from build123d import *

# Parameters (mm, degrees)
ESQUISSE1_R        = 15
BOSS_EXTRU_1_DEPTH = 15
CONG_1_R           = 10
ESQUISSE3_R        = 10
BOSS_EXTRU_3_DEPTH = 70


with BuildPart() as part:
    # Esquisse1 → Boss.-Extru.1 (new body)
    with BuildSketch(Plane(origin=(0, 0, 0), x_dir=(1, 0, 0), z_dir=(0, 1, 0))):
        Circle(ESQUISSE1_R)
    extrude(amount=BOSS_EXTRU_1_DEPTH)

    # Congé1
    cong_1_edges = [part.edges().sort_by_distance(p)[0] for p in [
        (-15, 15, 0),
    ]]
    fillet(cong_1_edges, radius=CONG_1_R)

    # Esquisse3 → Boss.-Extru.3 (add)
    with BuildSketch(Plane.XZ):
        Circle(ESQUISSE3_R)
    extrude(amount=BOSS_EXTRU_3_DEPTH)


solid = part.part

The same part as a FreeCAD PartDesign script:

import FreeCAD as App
import Part
import Sketcher
from FreeCAD import Vector
Q = App.Units.Quantity


def edges_at(feature, points):
    """Names of the edges that pass closest to the given points."""
    edges = feature.Shape.Edges
    near = lambda p: min(range(len(edges)), key=lambda i: edges[i].distToShape(Part.Vertex(*p))[0])
    return sorted({f"Edge{near(p) + 1}" for p in points})

doc = App.newDocument("Part")
params = doc.addObject("Spreadsheet::Sheet", "Params")
for row, (alias, value) in enumerate([
    ("sketch1_diameter", "30 mm"),
    ("pad1_length", "15 mm"),
    ("fillet_radius", "10 mm"),
    ("sketch2_diameter", "20 mm"),
    ("pad2_length", "70 mm"),
], start=1):
    params.set(f"A{row}", alias)
    params.set(f"B{row}", "=" + value)
    params.setAlias(f"B{row}", alias)

body = doc.addObject("PartDesign::Body", "Body")

sketch1 = body.newObject("Sketcher::SketchObject", "Sketch")
sketch1.AttachmentSupport = (doc.getObject("XZ_Plane"), [""])
sketch1.MapMode = "FlatFace"
sketch1.addGeometry(Part.Circle(Vector(0, 0, 0), Vector(0, 0, 1), 15), False)
sketch1.addConstraint([
    Sketcher.Constraint("Coincident", 0, 3, -1, 1),
    Sketcher.Constraint("Diameter", 0, Q("30 mm")),
])
sketch1.setExpression("Constraints[1]", "Params.sketch1_diameter")
pad1 = body.newObject("PartDesign::Pad", "Pad")
pad1.Profile = sketch1
pad1.setExpression("Length", "Params.pad1_length")
pad1.Reversed = True
doc.recompute()

fillet = body.newObject("PartDesign::Fillet", "Fillet")
fillet.Base = (pad1, edges_at(pad1, [(-15, 15, 0)]))
fillet.setExpression("Radius", "Params.fillet_radius")

sketch2 = body.newObject("Sketcher::SketchObject", "Sketch001")
sketch2.AttachmentSupport = (doc.getObject("XZ_Plane"), [""])
sketch2.MapMode = "FlatFace"
sketch2.addGeometry(Part.Circle(Vector(0, 0, 0), Vector(0, 0, 1), 10), False)
sketch2.addConstraint([
    Sketcher.Constraint("Coincident", 0, 3, -1, 1),
    Sketcher.Constraint("Diameter", 0, Q("20 mm")),
])
sketch2.setExpression("Constraints[1]", "Params.sketch2_diameter")
pad2 = body.newObject("PartDesign::Pad", "Pad001")
pad2.Profile = sketch2
pad2.setExpression("Length", "Params.pad2_length")

doc.recompute()
